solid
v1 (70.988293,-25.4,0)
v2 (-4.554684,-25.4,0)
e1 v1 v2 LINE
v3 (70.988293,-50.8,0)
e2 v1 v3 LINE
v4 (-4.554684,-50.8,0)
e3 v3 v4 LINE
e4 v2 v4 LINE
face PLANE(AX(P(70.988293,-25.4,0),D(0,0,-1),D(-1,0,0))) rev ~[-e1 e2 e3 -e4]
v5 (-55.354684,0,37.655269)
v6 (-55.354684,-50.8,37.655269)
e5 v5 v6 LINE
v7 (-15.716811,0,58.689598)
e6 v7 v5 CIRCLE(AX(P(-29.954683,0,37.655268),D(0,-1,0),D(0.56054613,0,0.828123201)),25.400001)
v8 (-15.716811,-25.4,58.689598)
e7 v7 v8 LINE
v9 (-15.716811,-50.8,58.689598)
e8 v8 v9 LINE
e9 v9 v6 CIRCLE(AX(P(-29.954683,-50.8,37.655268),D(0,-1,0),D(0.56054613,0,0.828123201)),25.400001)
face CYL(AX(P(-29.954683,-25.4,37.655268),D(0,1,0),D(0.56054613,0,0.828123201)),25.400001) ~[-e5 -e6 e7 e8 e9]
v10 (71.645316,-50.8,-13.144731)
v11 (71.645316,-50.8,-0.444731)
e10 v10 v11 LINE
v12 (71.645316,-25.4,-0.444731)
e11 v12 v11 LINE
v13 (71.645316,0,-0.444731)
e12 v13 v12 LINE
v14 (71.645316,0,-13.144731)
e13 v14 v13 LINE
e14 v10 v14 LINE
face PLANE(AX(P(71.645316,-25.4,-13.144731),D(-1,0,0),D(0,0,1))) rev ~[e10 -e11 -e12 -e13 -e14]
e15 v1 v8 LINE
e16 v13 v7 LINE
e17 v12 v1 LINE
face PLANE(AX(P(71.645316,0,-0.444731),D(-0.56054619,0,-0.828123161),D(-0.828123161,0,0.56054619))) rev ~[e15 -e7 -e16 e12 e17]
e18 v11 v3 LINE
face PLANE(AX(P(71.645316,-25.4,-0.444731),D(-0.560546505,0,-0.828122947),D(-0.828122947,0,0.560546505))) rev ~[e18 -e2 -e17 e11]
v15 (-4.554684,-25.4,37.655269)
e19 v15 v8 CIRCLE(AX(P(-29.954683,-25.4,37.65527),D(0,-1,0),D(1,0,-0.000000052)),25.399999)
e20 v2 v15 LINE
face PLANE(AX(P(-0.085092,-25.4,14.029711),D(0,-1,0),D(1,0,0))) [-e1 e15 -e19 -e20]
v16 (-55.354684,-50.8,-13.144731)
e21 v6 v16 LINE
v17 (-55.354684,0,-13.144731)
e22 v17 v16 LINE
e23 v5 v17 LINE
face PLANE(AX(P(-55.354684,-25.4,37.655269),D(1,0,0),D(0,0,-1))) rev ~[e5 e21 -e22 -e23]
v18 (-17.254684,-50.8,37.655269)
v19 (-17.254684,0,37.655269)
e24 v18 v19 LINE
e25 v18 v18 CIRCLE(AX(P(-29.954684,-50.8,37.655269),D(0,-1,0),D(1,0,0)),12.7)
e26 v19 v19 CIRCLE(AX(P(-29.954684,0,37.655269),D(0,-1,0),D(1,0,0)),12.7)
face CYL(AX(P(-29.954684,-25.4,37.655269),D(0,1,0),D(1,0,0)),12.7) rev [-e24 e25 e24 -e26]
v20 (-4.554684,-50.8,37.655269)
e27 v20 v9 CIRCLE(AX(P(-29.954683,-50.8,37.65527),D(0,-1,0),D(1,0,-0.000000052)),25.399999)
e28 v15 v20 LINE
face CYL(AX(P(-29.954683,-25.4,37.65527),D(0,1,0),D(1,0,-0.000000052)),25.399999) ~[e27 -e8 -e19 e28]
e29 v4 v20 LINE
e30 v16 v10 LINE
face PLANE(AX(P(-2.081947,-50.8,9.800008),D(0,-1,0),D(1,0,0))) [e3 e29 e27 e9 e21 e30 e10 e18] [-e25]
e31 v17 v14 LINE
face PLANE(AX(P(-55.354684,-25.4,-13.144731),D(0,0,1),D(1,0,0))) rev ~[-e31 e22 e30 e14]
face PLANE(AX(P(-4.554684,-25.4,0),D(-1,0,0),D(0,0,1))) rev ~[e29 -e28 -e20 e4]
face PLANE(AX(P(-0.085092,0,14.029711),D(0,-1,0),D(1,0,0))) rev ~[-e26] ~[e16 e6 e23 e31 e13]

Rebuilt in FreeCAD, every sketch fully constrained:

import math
import FreeCAD as App
import Part
import Sketcher
Q = App.Units.Quantity

doc = App.newDocument("Part")
body = doc.addObject("PartDesign::Body", "Body")

# Sketch on XZ plane
sketch1 = body.newObject("Sketcher::SketchObject", "Sketch")
sketch1.AttachmentSupport = (doc.getObject("XZ_Plane"), [""])
sketch1.MapMode = "FlatFace"
sketch1.addGeometry([
    Part.LineSegment(App.Vector(72, 0, 0), App.Vector(-16, 59, 0)),  # 0
    Part.ArcOfCircle(Part.Circle(App.Vector(-30, 38, 0), App.Vector(0, 0, 1), 25), math.radians(56), math.radians(180)),  # 1
    Part.LineSegment(App.Vector(-55, 38, 0), App.Vector(-55, -13, 0)),  # 2
    Part.LineSegment(App.Vector(-55, -13, 0), App.Vector(72, -13, 0)),  # 3
    Part.LineSegment(App.Vector(72, -13, 0), App.Vector(72, 0, 0)),  # 4
    Part.Circle(App.Vector(-30, 38, 0), App.Vector(0, 0, 1), 13),  # 5
], False)
sketch1.addConstraint([
    Sketcher.Constraint("Tangent", 0, 2, 1, 1),
    Sketcher.Constraint("Tangent", 1, 2, 2, 1),
    Sketcher.Constraint("Coincident", 2, 2, 3, 1),
    Sketcher.Constraint("Coincident", 3, 2, 4, 1),
    Sketcher.Constraint("Coincident", 4, 2, 0, 1),
    Sketcher.Constraint("Vertical", 2),
    Sketcher.Constraint("Horizontal", 3),
    Sketcher.Constraint("Vertical", 4),
    Sketcher.Constraint("Coincident", 5, 3, 1, 3),
    Sketcher.Constraint("Diameter", 5, Q("1 in")),
    Sketcher.Constraint("Radius", 1, Q("1 in")),
    Sketcher.Constraint("DistanceX", 3, 1, 3, 2, Q("5 in")),
    Sketcher.Constraint("DistanceY", 2, 2, 2, 1, Q("2 in")),
    Sketcher.Constraint("DistanceY", 4, 1, 4, 2, Q("0.5 in")),
    Sketcher.Constraint("DistanceY", -1, 1, 1, 3, Q("37.655268 mm")),
    Sketcher.Constraint("DistanceX", 0, 2, -1, 1, Q("15.716811 mm")),
])
pad1 = body.newObject("PartDesign::Pad", "Pad")
pad1.Profile = sketch1
pad1.Length = Q("1 in")

# Sketch on XZ plane
sketch2 = body.newObject("Sketcher::SketchObject", "Sketch001")
sketch2.AttachmentSupport = (doc.getObject("XZ_Plane"), [""])
sketch2.MapMode = "FlatFace"
sketch2.AttachmentOffset = App.Placement(App.Vector(0, 0, 1 * 25.4), App.Rotation())
sketch2.addGeometry([
    Part.LineSegment(App.Vector(-4.6, 0, 0), App.Vector(-4.6, 37.7, 0)),  # 0
    Part.ArcOfCircle(Part.Circle(App.Vector(-30, 37.7, 0), App.Vector(0, 0, 1), 25.4), math.radians(0), math.radians(56)),  # 1
    Part.ArcOfCircle(Part.Circle(App.Vector(-30, 37.7, 0), App.Vector(0, 0, 1), 25.4), math.radians(56), math.radians(180)),  # 2
    Part.LineSegment(App.Vector(-55.4, 37.7, 0), App.Vector(-55.4, -13.1, 0)),  # 3
    Part.LineSegment(App.Vector(-55.4, -13.1, 0), App.Vector(71.6, -13.1, 0)),  # 4
    Part.LineSegment(App.Vector(71.6, -13.1, 0), App.Vector(71.6, -0.4, 0)),  # 5
    Part.LineSegment(App.Vector(71.6, -0.4, 0), App.Vector(71, 0, 0)),  # 6
    Part.LineSegment(App.Vector(71, 0, 0), App.Vector(-4.6, 0, 0)),  # 7
    Part.Circle(App.Vector(-30, 37.7, 0), App.Vector(0, 0, 1), 12.7),  # 8
], False)
sketch2.addConstraint([
    Sketcher.Constraint("Tangent", 0, 2, 1, 1),
    Sketcher.Constraint("Tangent", 1, 2, 2, 1),
    Sketcher.Constraint("Tangent", 2, 2, 3, 1),
    Sketcher.Constraint("Coincident", 3, 2, 4, 1),
    Sketcher.Constraint("Coincident", 4, 2, 5, 1),
    Sketcher.Constraint("Coincident", 5, 2, 6, 1),
    Sketcher.Constraint("Coincident", 6, 2, 7, 1),
    Sketcher.Constraint("Coincident", 7, 2, 0, 1),
    Sketcher.Constraint("Vertical", 0),
    Sketcher.Constraint("Vertical", 3),
    Sketcher.Constraint("Horizontal", 4),
    Sketcher.Constraint("Vertical", 5),
    Sketcher.Constraint("Horizontal", 7),
    Sketcher.Constraint("Coincident", 8, 3, 1, 3),
    Sketcher.Constraint("PointOnObject", 6, 2, -1),
    Sketcher.Constraint("Horizontal", 0, 2, 2, 2),
    Sketcher.Constraint("Diameter", 8, Q("1 in")),
    Sketcher.Constraint("Radius", 1, Q("0.9999999 in")),
    Sketcher.Constraint("DistanceX", 4, 1, 4, 2, Q("5 in")),
    Sketcher.Constraint("DistanceY", 3, 2, 3, 1, Q("2 in")),
    Sketcher.Constraint("DistanceY", 5, 1, 5, 2, Q("0.5 in")),
    Sketcher.Constraint("DistanceY", 0, 1, 0, 2, Q("37.655269 mm")),
    Sketcher.Constraint("Distance", 6, Q("0.793388 mm")),
    Sketcher.Constraint("DistanceX", 1, 2, -1, 1, Q("15.716811 mm")),
    Sketcher.Constraint("DistanceY", 0, 2, 1, 2, Q("21.034329 mm")),
])
pad2 = body.newObject("PartDesign::Pad", "Pad001")
pad2.Profile = sketch2
pad2.Length = Q("1 in")

doc.recompute()
